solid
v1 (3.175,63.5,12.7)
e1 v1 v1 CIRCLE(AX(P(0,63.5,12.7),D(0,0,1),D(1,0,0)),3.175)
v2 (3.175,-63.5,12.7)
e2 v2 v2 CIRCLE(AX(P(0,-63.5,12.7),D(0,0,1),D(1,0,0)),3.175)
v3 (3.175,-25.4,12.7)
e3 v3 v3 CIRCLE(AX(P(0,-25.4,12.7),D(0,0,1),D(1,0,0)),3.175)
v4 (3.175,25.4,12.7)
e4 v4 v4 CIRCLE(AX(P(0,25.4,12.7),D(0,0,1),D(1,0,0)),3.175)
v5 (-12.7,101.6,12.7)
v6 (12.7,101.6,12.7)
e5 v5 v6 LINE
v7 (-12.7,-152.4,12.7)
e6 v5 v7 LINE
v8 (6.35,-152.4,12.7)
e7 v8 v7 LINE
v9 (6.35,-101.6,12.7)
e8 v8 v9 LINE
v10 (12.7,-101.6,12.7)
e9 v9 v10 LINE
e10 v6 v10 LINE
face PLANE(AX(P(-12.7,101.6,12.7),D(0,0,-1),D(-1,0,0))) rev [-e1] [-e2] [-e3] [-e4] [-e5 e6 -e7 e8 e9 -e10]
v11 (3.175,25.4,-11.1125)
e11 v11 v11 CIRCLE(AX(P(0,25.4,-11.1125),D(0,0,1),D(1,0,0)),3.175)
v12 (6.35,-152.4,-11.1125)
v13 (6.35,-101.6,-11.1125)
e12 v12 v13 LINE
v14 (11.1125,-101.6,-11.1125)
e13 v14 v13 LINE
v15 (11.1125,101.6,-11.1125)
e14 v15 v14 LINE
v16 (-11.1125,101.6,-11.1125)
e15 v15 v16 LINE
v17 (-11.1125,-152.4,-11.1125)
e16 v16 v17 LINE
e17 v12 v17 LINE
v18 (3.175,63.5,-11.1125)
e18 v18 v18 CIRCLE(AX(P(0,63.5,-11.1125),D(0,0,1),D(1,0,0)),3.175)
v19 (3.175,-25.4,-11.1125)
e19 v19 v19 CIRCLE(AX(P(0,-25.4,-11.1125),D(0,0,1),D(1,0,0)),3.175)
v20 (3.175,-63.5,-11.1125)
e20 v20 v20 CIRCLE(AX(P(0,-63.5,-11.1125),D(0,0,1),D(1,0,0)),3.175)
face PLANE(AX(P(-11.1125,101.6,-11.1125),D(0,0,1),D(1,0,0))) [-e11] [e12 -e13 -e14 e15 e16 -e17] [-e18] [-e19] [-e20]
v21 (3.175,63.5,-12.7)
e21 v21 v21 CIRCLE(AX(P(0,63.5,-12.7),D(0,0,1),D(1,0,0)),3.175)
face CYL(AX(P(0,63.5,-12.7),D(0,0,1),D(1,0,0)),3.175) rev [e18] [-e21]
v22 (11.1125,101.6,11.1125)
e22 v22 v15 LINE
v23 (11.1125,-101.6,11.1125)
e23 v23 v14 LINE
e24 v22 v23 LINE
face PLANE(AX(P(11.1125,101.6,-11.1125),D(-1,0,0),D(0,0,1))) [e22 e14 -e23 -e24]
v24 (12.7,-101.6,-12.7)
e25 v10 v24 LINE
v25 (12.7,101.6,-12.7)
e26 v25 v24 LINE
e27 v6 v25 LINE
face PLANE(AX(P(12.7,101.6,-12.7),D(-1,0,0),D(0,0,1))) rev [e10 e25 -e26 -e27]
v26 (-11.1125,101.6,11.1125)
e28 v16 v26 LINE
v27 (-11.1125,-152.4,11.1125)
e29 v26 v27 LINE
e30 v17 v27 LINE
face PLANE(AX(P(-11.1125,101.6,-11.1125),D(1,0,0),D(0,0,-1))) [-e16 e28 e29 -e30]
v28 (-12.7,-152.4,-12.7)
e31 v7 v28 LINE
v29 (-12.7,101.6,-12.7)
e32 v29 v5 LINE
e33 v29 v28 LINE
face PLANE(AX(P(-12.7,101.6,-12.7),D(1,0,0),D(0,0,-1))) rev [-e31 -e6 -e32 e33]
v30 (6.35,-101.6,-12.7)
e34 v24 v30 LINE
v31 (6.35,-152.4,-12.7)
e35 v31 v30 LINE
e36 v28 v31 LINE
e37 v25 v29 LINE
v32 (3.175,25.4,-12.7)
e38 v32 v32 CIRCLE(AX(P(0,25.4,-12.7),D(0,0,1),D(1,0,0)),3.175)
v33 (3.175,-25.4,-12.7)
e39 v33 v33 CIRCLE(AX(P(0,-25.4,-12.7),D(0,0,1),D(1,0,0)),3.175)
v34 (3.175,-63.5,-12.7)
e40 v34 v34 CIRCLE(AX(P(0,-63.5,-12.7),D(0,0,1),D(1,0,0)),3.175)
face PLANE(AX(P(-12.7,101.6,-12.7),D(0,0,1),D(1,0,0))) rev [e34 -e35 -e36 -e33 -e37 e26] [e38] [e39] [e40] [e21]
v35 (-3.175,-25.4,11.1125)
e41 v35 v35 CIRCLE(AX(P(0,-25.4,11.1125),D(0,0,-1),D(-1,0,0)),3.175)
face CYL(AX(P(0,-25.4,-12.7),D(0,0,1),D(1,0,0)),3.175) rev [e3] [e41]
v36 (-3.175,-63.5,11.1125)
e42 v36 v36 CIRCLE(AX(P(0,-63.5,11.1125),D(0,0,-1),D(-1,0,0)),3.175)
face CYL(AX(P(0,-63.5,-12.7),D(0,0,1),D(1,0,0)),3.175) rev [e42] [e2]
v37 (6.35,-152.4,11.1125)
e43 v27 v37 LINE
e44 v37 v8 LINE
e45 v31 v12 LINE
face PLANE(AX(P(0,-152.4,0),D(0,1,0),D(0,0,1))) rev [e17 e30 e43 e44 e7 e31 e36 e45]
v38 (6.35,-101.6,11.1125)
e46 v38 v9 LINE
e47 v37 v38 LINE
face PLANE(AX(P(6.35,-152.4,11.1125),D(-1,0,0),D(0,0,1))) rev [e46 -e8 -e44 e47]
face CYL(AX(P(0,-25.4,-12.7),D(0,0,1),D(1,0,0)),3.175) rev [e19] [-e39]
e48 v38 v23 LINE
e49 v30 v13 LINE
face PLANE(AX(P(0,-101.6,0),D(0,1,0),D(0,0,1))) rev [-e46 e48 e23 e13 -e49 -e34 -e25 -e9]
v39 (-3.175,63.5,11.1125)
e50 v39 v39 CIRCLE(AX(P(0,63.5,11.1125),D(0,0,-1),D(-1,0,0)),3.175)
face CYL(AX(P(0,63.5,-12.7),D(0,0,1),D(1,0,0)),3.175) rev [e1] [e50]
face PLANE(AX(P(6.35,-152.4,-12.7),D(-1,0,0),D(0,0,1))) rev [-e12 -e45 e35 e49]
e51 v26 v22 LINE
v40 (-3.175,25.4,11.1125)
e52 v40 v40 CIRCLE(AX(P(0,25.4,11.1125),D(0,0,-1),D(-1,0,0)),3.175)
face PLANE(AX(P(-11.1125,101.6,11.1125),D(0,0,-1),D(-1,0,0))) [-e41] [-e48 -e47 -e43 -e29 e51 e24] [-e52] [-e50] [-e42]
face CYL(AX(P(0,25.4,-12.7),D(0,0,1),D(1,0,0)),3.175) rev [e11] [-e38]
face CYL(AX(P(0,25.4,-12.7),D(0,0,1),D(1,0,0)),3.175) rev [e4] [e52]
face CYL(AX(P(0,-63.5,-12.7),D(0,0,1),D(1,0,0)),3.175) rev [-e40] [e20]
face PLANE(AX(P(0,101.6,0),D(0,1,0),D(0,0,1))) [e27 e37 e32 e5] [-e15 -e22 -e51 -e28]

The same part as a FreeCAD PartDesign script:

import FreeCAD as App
import Part
import Sketcher
from FreeCAD import Vector
Q = App.Units.Quantity

doc = App.newDocument("Part")
body = doc.addObject("PartDesign::Body", "Body")

# Sketch on XZ plane
sketch1 = doc.addObject("Sketcher::SketchObject", "Sketch")
body.addObject(sketch1)
sketch1.AttachmentSupport = (doc.XZ_Plane, [""])
sketch1.MapMode = "FlatFace"
sketch1.addGeometry(Part.LineSegment(Vector(-12.7, -12.7, 0), Vector(-12.7, 12.7, 0)), False)
sketch1.addGeometry(Part.LineSegment(Vector(-12.7, 12.7, 0), Vector(12.7, 12.7, 0)), False)
sketch1.addGeometry(Part.LineSegment(Vector(12.7, 12.7, 0), Vector(12.7, -12.7, 0)), False)
sketch1.addGeometry(Part.LineSegment(Vector(12.7, -12.7, 0), Vector(-12.7, -12.7, 0)), False)
sketch1.addGeometry(Part.LineSegment(Vector(11.1125, 11.1125, 0), Vector(-11.1125, 11.1125, 0)), False)
sketch1.addGeometry(Part.LineSegment(Vector(-11.1125, 11.1125, 0), Vector(-11.1125, -11.1125, 0)), False)
sketch1.addGeometry(Part.LineSegment(Vector(-11.1125, -11.1125, 0), Vector(11.1125, -11.1125, 0)), False)
sketch1.addGeometry(Part.LineSegment(Vector(11.1125, -11.1125, 0), Vector(11.1125, 11.1125, 0)), False)
sketch1.addConstraint(Sketcher.Constraint("Coincident", 0, 2, 1, 1))
sketch1.addConstraint(Sketcher.Constraint("Coincident", 1, 2, 2, 1))
sketch1.addConstraint(Sketcher.Constraint("Coincident", 2, 2, 3, 1))
sketch1.addConstraint(Sketcher.Constraint("Coincident", 3, 2, 0, 1))
sketch1.addConstraint(Sketcher.Constraint("Coincident", 4, 2, 5, 1))
sketch1.addConstraint(Sketcher.Constraint("Coincident", 5, 2, 6, 1))
sketch1.addConstraint(Sketcher.Constraint("Coincident", 6, 2, 7, 1))
sketch1.addConstraint(Sketcher.Constraint("Coincident", 7, 2, 4, 1))
sketch1.addConstraint(Sketcher.Constraint("Vertical", 0))
sketch1.addConstraint(Sketcher.Constraint("Horizontal", 1))
sketch1.addConstraint(Sketcher.Constraint("Vertical", 2))
sketch1.addConstraint(Sketcher.Constraint("Horizontal", 3))
sketch1.addConstraint(Sketcher.Constraint("Horizontal", 4))
sketch1.addConstraint(Sketcher.Constraint("Vertical", 5))
sketch1.addConstraint(Sketcher.Constraint("Horizontal", 6))
sketch1.addConstraint(Sketcher.Constraint("Vertical", 7))
sketch1.addConstraint(Sketcher.Constraint("Symmetric", 0, 2, 2, 2, -1, 1))
sketch1.addConstraint(Sketcher.Constraint("Symmetric", 4, 2, 6, 2, -1, 1))
sketch1.addConstraint(Sketcher.Constraint("Equal", 3, 0))
sketch1.addConstraint(Sketcher.Constraint("Equal", 6, 5))
sketch1.addConstraint(Sketcher.Constraint("DistanceX", 1, 1, 1, 2, Q("1 in")))
sketch1.addConstraint(Sketcher.Constraint("DistanceX", 4, 2, 4, 1, Q("0.875 in")))
pad1 = doc.addObject("PartDesign::Pad", "Pad")
body.addObject(pad1)
pad1.Profile = sketch1
pad1.Length = Q("8 in")
pad1.Midplane = True

# Sketch on XY plane
sketch2 = doc.addObject("Sketcher::SketchObject", "Sketch001")
body.addObject(sketch2)
sketch2.AttachmentSupport = (doc.XY_Plane, [""])
sketch2.MapMode = "FlatFace"
sketch2.AttachmentOffset = App.Placement(Vector(0, 0, 0.5 * 25.4), App.Rotation())
sketch2.addGeometry(Part.Circle(Vector(0, 63.5, 0), Vector(0, 0, 1), 3.175), False)
sketch2.addGeometry(Part.Circle(Vector(0, -63.5, 0), Vector(0, 0, 1), 3.175), False)
sketch2.addConstraint(Sketcher.Constraint("Equal", 0, 1))
sketch2.addConstraint(Sketcher.Constraint("Symmetric", 0, 3, 1, 3, -1, 1))
sketch2.addConstraint(Sketcher.Constraint("PointOnObject", 0, 3, -2))
sketch2.addConstraint(Sketcher.Constraint("Diameter", 0, Q("0.25 in")))
sketch2.addConstraint(Sketcher.Constraint("DistanceY", 1, 3, 0, 3, Q("5 in")))
pocket1 = doc.addObject("PartDesign::Pocket", "Pocket")
body.addObject(pocket1)
pocket1.Profile = sketch2
pocket1.Length = Q("1 in")

# Sketch on XY plane
sketch3 = doc.addObject("Sketcher::SketchObject", "Sketch002")
body.addObject(sketch3)
sketch3.AttachmentSupport = (doc.XY_Plane, [""])
sketch3.MapMode = "FlatFace"
sketch3.AttachmentOffset = App.Placement(Vector(0, 0, 0.5 * 25.4), App.Rotation())
sketch3.addGeometry(Part.Circle(Vector(0, 25.4, 0), Vector(0, 0, 1), 3.175), False)
sketch3.addGeometry(Part.Circle(Vector(0, -25.4, 0), Vector(0, 0, 1), 3.175), False)
sketch3.addConstraint(Sketcher.Constraint("Equal", 0, 1))
sketch3.addConstraint(Sketcher.Constraint("Symmetric", 0, 3, 1, 3, -1, 1))
sketch3.addConstraint(Sketcher.Constraint("PointOnObject", 0, 3, -2))
sketch3.addConstraint(Sketcher.Constraint("Diameter", 0, Q("0.25 in")))
sketch3.addConstraint(Sketcher.Constraint("DistanceY", -1, 1, 0, 3, Q("1 in")))
pocket2 = doc.addObject("PartDesign::Pocket", "Pocket001")
body.addObject(pocket2)
pocket2.Profile = sketch3
pocket2.Length = Q("1 in")

# Sketch on XZ plane
sketch4 = doc.addObject("Sketcher::SketchObject", "Sketch003")
body.addObject(sketch4)
sketch4.AttachmentSupport = (doc.XZ_Plane, [""])
sketch4.MapMode = "FlatFace"
sketch4.AttachmentOffset = App.Placement(Vector(0, 0, 4 * 25.4), App.Rotation())
sketch4.addGeometry(Part.LineSegment(Vector(6.35, -11.1125, 0), Vector(-11.1125, -11.1125, 0)), False)
sketch4.addGeometry(Part.LineSegment(Vector(-11.1125, -11.1125, 0), Vector(-11.1125, 11.1125, 0)), False)
sketch4.addGeometry(Part.LineSegment(Vector(-11.1125, 11.1125, 0), Vector(6.35, 11.1125, 0)), False)
sketch4.addGeometry(Part.LineSegment(Vector(6.35, 11.1125, 0), Vector(6.35, 12.7, 0)), False)
sketch4.addGeometry(Part.LineSegment(Vector(6.35, 12.7, 0), Vector(-12.7, 12.7, 0)), False)
sketch4.addGeometry(Part.LineSegment(Vector(-12.7, 12.7, 0), Vector(-12.7, -12.7, 0)), False)
sketch4.addGeometry(Part.LineSegment(Vector(-12.7, -12.7, 0), Vector(6.35, -12.7, 0)), False)
sketch4.addGeometry(Part.LineSegment(Vector(6.35, -12.7, 0), Vector(6.35, -11.1125, 0)), False)
sketch4.addConstraint(Sketcher.Constraint("Coincident", 0, 2, 1, 1))
sketch4.addConstraint(Sketcher.Constraint("Coincident", 1, 2, 2, 1))
sketch4.addConstraint(Sketcher.Constraint("Coincident", 2, 2, 3, 1))
sketch4.addConstraint(Sketcher.Constraint("Coincident", 3, 2, 4, 1))
sketch4.addConstraint(Sketcher.Constraint("Coincident", 4, 2, 5, 1))
sketch4.addConstraint(Sketcher.Constraint("Coincident", 5, 2, 6, 1))
sketch4.addConstraint(Sketcher.Constraint("Coincident", 6, 2, 7, 1))
sketch4.addConstraint(Sketcher.Constraint("Coincident", 7, 2, 0, 1))
sketch4.addConstraint(Sketcher.Constraint("Horizontal", 0))
sketch4.addConstraint(Sketcher.Constraint("Vertical", 1))
sketch4.addConstraint(Sketcher.Constraint("Horizontal", 2))
sketch4.addConstraint(Sketcher.Constraint("Vertical", 3))
sketch4.addConstraint(Sketcher.Constraint("Horizontal", 4))
sketch4.addConstraint(Sketcher.Constraint("Vertical", 5))
sketch4.addConstraint(Sketcher.Constraint("Horizontal", 6))
sketch4.addConstraint(Sketcher.Constraint("Vertical", 7))
sketch4.addConstraint(Sketcher.Constraint("Symmetric", 3, 2, 6, 2, -1))
sketch4.addConstraint(Sketcher.Constraint("Equal", 3, 7))
sketch4.addConstraint(Sketcher.Constraint("DistanceY", 5, 2, 5, 1, Q("1 in")))
sketch4.addConstraint(Sketcher.Constraint("DistanceX", 4, 2, 4, 1, Q("0.75 in")))
sketch4.addConstraint(Sketcher.Constraint("DistanceX", 4, 2, -1, 1, Q("0.5 in")))
sketch4.addConstraint(Sketcher.Constraint("DistanceX", 0, 2, 0, 1, Q("0.6875 in")))
sketch4.addConstraint(Sketcher.Constraint("DistanceY", 1, 1, 1, 2, Q("0.875 in")))
pad2 = doc.addObject("PartDesign::Pad", "Pad001")
body.addObject(pad2)
pad2.Profile = sketch4
pad2.Length = Q("2 in")

doc.recompute()
